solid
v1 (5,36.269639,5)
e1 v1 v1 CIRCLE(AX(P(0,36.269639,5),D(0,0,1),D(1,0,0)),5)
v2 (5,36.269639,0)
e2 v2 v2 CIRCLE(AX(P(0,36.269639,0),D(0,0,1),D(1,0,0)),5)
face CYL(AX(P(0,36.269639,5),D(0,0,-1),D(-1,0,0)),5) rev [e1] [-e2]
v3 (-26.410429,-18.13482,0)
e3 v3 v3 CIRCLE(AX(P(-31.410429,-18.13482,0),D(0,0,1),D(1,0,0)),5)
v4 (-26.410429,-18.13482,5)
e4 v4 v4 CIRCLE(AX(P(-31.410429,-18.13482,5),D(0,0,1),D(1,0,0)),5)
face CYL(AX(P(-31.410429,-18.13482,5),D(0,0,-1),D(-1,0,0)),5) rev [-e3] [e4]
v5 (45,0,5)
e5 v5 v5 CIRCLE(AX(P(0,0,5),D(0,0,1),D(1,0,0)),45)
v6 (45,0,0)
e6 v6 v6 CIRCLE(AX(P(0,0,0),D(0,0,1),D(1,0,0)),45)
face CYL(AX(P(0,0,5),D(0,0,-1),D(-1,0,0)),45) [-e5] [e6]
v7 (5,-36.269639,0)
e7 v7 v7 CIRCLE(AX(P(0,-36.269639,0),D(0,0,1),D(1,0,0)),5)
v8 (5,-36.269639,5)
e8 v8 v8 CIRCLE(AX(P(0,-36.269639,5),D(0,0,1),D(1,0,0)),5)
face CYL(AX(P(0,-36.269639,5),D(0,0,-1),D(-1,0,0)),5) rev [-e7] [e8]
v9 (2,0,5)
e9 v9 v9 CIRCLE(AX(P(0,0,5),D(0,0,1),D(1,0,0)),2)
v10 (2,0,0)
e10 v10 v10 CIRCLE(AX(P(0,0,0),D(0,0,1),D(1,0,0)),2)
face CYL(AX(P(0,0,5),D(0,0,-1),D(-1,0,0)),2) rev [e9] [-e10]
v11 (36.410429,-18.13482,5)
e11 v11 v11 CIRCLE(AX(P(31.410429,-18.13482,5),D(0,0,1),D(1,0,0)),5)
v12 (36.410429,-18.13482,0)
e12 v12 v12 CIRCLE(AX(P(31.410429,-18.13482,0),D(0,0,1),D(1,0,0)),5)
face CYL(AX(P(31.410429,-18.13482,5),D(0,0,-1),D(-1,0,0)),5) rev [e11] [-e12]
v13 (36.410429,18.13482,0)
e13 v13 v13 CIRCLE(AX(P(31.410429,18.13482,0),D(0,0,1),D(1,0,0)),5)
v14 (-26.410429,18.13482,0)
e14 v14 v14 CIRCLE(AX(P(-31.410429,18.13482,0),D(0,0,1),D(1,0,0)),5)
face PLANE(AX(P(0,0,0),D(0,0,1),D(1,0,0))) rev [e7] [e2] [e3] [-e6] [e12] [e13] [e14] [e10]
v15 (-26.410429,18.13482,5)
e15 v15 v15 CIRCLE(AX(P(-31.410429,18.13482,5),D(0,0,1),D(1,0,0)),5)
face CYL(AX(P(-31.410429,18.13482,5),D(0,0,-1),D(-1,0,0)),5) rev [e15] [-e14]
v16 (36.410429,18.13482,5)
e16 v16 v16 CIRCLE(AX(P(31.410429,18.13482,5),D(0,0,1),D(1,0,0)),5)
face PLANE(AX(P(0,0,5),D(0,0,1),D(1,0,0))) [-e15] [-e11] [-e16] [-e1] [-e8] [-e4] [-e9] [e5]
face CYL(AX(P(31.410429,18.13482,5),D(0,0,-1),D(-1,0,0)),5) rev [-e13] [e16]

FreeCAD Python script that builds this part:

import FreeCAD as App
import Part
import Sketcher
Q = App.Units.Quantity

doc = App.newDocument("Part")
body = doc.addObject("PartDesign::Body", "Body")

sketch1 = doc.addObject("Sketcher::SketchObject", "Sketch")
body.addObject(sketch1)
sketch1.AttachmentSupport = (doc.XY_Plane, [""])
sketch1.MapMode = "FlatFace"
sketch1.addGeometry([
    Part.Circle(App.Vector(0, 0, 0), App.Vector(0, 0, 1), 45),
    Part.Circle(App.Vector(0, -36.269639, 0), App.Vector(0, 0, 1), 5),
    Part.Circle(App.Vector(-31.410429, -18.13482, 0), App.Vector(0, 0, 1), 5),
    Part.Circle(App.Vector(31.410429, -18.13482, 0), App.Vector(0, 0, 1), 5),
    Part.Circle(App.Vector(-31.410429, 18.13482, 0), App.Vector(0, 0, 1), 5),
    Part.Circle(App.Vector(0, 0, 0), App.Vector(0, 0, 1), 2),
    Part.Circle(App.Vector(0, 36.269639, 0), App.Vector(0, 0, 1), 5),
    Part.Circle(App.Vector(31.410429, 18.13482, 0), App.Vector(0, 0, 1), 5),
], False)
sketch1.addConstraint([
    Sketcher.Constraint("Coincident", 0, 3, -1, 1),
    Sketcher.Constraint("Coincident", 5, 3, -1, 1),
    Sketcher.Constraint("Equal", 1, 2),
    Sketcher.Constraint("Equal", 2, 3),
    Sketcher.Constraint("Equal", 3, 4),
    Sketcher.Constraint("Equal", 4, 6),
    Sketcher.Constraint("Equal", 6, 7),
    Sketcher.Constraint("Symmetric", 3, 3, 4, 3, -1, 1),
    Sketcher.Constraint("Symmetric", 1, 3, 6, 3, -1, 1),
    Sketcher.Constraint("Symmetric", 2, 3, 7, 3, -1, 1),
    Sketcher.Constraint("Symmetric", 2, 3, 3, 3, -2),
    Sketcher.Constraint("PointOnObject", 1, 3, -2),
    Sketcher.Constraint("Diameter", 0, Q("90 mm")),
    Sketcher.Constraint("Diameter", 1, Q("10 mm")),
    Sketcher.Constraint("Diameter", 5, Q("4 mm")),
    Sketcher.Constraint("DistanceY", 1, 3, -1, 1, Q("36.269639 mm")),
    Sketcher.Constraint("DistanceX", 2, 3, -1, 1, Q("31.410429 mm")),
    Sketcher.Constraint("DistanceY", 2, 3, -1, 1, Q("18.13482 mm")),
])
pad1 = doc.addObject("PartDesign::Pad", "Pad")
body.addObject(pad1)
pad1.Profile = sketch1
pad1.Length = 5

doc.recompute()
